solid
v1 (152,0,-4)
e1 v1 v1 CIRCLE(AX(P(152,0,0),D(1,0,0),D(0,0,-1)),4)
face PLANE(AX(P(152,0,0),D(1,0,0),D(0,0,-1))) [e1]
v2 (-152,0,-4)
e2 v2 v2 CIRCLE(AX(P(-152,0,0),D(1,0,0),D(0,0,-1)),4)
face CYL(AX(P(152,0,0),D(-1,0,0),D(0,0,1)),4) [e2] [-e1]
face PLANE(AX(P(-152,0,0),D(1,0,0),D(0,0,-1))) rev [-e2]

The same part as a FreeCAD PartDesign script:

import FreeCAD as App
import Part
import Sketcher

V = App.Vector

doc = App.newDocument("Part")
body = doc.addObject("PartDesign::Body", "Body")

# Sketch on YZ plane
sketch1 = body.newObject("Sketcher::SketchObject", "Sketch")
sketch1.AttachmentSupport = (doc.getObject("YZ_Plane"), [""])
sketch1.MapMode = "FlatFace"
sketch1.addGeometry(Part.Circle(V(0, 0, 0), V(0, 0, 1), 4), False)
sketch1.addConstraint(Sketcher.Constraint("Coincident", 0, 3, -1, 1))
sketch1.addConstraint(Sketcher.Constraint("Diameter", 0, 8.0))
pad1 = body.newObject("PartDesign::Pad", "Pad")
pad1.Profile = sketch1
pad1.Length = 304
pad1.Midplane = True

doc.recompute()
